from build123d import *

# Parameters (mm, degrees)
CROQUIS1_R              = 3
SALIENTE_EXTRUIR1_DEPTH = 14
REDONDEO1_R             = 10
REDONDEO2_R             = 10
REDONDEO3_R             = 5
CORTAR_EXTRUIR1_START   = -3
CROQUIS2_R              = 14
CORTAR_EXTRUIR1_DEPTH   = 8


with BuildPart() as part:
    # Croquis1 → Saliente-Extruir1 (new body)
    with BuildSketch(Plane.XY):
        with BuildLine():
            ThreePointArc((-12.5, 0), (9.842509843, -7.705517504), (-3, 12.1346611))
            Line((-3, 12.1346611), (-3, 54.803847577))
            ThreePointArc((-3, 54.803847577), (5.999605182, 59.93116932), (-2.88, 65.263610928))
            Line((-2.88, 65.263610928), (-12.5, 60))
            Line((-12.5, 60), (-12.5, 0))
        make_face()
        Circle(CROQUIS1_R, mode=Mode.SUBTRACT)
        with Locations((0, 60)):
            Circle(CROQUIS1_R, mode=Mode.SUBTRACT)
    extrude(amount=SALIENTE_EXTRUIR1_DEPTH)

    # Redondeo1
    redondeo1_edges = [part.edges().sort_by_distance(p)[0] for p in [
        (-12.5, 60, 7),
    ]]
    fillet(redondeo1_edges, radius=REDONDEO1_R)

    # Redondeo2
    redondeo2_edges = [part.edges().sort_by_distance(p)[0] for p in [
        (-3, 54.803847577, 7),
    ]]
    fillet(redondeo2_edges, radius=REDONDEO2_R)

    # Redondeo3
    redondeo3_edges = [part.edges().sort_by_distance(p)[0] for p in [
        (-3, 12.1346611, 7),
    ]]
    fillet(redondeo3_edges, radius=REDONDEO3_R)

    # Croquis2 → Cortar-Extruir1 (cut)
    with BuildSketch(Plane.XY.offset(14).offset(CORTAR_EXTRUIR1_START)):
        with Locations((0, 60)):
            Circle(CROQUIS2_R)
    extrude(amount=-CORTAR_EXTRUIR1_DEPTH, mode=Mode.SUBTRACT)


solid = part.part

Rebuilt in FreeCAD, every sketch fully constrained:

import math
import FreeCAD as App
import Part
import Sketcher
Q = App.Units.Quantity


def edges_at(feature, points):
    """Names of the edges that pass closest to the given points."""
    edges = feature.Shape.Edges
    near = lambda p: min(range(len(edges)), key=lambda i: edges[i].distToShape(Part.Vertex(*p))[0])
    return sorted({f"Edge{near(p) + 1}" for p in points})

doc = App.newDocument("Part")
body = doc.addObject("PartDesign::Body", "Body")

# Sketch on XY plane
sketch1 = doc.addObject("Sketcher::SketchObject", "Sketch")
body.addObject(sketch1)
sketch1.AttachmentSupport = (doc.XY_Plane, [""])
sketch1.MapMode = "FlatFace"
sketch1.addGeometry(Part.ArcOfCircle(Part.Circle(App.Vector(0, 0, 0), App.Vector(0, 0, 1), 12.5), math.radians(180), math.radians(463.88654)), False)
sketch1.addGeometry(Part.LineSegment(App.Vector(-3, 12.134661, 0), App.Vector(-3, 54.803848, 0)), False)
sketch1.addGeometry(Part.ArcOfCircle(Part.Circle(App.Vector(0, 60, 0), App.Vector(0, 0, 1), 6), math.radians(-120), math.radians(118.685402)), False)
sketch1.addGeometry(Part.LineSegment(App.Vector(-2.88, 65.263611, 0), App.Vector(-12.5, 60, 0)), False)
sketch1.addGeometry(Part.LineSegment(App.Vector(-12.5, 60, 0), App.Vector(-12.5, 0, 0)), False)
sketch1.addGeometry(Part.Circle(App.Vector(0, 0, 0), App.Vector(0, 0, 1), 3), False)
sketch1.addGeometry(Part.Circle(App.Vector(0, 60, 0), App.Vector(0, 0, 1), 3), False)
sketch1.addConstraint(Sketcher.Constraint("Coincident", 0, 2, 1, 1))
sketch1.addConstraint(Sketcher.Constraint("Coincident", 1, 2, 2, 1))
sketch1.addConstraint(Sketcher.Constraint("Tangent", 2, 2, 3, 1))
sketch1.addConstraint(Sketcher.Constraint("Coincident", 3, 2, 4, 1))
sketch1.addConstraint(Sketcher.Constraint("Tangent", 4, 2, 0, 1))
sketch1.addConstraint(Sketcher.Constraint("Vertical", 1))
sketch1.addConstraint(Sketcher.Constraint("Vertical", 4))
sketch1.addConstraint(Sketcher.Constraint("Coincident", 0, 3, -1, 1))
sketch1.addConstraint(Sketcher.Constraint("Coincident", 5, 3, -1, 1))
sketch1.addConstraint(Sketcher.Constraint("Coincident", 6, 3, 2, 3))
sketch1.addConstraint(Sketcher.Constraint("Equal", 5, 6))
sketch1.addConstraint(Sketcher.Constraint("PointOnObject", 2, 3, -2))
sketch1.addConstraint(Sketcher.Constraint("Horizontal", 6, 3, 3, 2))
sketch1.addConstraint(Sketcher.Constraint("Diameter", 5, Q("6 mm")))
sketch1.addConstraint(Sketcher.Constraint("Radius", 2, Q("6 mm")))
sketch1.addConstraint(Sketcher.Constraint("Radius", 0, Q("12.5 mm")))
sketch1.addConstraint(Sketcher.Constraint("DistanceY", 4, 2, 4, 1, Q("60 mm")))
sketch1.addConstraint(Sketcher.Constraint("DistanceX", 0, 2, -1, 1, Q("3 mm")))
pad1 = doc.addObject("PartDesign::Pad", "Pad")
body.addObject(pad1)
pad1.Profile = sketch1
pad1.Length = 14
doc.recompute()

fillet = doc.addObject("PartDesign::Fillet", "Fillet")
body.addObject(fillet)
fillet.Base = (pad1, edges_at(pad1, [(-12.5, 60, 7)]))
fillet.Radius = 10
doc.recompute()

fillet2 = doc.addObject("PartDesign::Fillet", "Fillet001")
body.addObject(fillet2)
fillet2.Base = (fillet, edges_at(fillet, [(-3, 54.804, 7)]))
fillet2.Radius = 10
doc.recompute()

fillet3 = doc.addObject("PartDesign::Fillet", "Fillet002")
body.addObject(fillet3)
fillet3.Base = (fillet2, edges_at(fillet2, [(-3, 12.135, 7)]))
fillet3.Radius = 5

# Sketch on XY plane
sketch2 = doc.addObject("Sketcher::SketchObject", "Sketch001")
body.addObject(sketch2)
sketch2.AttachmentSupport = (doc.XY_Plane, [""])
sketch2.MapMode = "FlatFace"
sketch2.AttachmentOffset = App.Placement(App.Vector(0, 0, 11), App.Rotation())
sketch2.addGeometry(Part.Circle(App.Vector(0, 60, 0), App.Vector(0, 0, 1), 14), False)
sketch2.addConstraint(Sketcher.Constraint("PointOnObject", 0, 3, -2))
sketch2.addConstraint(Sketcher.Constraint("Diameter", 0, Q("28 mm")))
sketch2.addConstraint(Sketcher.Constraint("DistanceY", -1, 1, 0, 3, Q("60 mm")))
pocket1 = doc.addObject("PartDesign::Pocket", "Pocket")
body.addObject(pocket1)
pocket1.Profile = sketch2
pocket1.Length = 8

doc.recompute()
